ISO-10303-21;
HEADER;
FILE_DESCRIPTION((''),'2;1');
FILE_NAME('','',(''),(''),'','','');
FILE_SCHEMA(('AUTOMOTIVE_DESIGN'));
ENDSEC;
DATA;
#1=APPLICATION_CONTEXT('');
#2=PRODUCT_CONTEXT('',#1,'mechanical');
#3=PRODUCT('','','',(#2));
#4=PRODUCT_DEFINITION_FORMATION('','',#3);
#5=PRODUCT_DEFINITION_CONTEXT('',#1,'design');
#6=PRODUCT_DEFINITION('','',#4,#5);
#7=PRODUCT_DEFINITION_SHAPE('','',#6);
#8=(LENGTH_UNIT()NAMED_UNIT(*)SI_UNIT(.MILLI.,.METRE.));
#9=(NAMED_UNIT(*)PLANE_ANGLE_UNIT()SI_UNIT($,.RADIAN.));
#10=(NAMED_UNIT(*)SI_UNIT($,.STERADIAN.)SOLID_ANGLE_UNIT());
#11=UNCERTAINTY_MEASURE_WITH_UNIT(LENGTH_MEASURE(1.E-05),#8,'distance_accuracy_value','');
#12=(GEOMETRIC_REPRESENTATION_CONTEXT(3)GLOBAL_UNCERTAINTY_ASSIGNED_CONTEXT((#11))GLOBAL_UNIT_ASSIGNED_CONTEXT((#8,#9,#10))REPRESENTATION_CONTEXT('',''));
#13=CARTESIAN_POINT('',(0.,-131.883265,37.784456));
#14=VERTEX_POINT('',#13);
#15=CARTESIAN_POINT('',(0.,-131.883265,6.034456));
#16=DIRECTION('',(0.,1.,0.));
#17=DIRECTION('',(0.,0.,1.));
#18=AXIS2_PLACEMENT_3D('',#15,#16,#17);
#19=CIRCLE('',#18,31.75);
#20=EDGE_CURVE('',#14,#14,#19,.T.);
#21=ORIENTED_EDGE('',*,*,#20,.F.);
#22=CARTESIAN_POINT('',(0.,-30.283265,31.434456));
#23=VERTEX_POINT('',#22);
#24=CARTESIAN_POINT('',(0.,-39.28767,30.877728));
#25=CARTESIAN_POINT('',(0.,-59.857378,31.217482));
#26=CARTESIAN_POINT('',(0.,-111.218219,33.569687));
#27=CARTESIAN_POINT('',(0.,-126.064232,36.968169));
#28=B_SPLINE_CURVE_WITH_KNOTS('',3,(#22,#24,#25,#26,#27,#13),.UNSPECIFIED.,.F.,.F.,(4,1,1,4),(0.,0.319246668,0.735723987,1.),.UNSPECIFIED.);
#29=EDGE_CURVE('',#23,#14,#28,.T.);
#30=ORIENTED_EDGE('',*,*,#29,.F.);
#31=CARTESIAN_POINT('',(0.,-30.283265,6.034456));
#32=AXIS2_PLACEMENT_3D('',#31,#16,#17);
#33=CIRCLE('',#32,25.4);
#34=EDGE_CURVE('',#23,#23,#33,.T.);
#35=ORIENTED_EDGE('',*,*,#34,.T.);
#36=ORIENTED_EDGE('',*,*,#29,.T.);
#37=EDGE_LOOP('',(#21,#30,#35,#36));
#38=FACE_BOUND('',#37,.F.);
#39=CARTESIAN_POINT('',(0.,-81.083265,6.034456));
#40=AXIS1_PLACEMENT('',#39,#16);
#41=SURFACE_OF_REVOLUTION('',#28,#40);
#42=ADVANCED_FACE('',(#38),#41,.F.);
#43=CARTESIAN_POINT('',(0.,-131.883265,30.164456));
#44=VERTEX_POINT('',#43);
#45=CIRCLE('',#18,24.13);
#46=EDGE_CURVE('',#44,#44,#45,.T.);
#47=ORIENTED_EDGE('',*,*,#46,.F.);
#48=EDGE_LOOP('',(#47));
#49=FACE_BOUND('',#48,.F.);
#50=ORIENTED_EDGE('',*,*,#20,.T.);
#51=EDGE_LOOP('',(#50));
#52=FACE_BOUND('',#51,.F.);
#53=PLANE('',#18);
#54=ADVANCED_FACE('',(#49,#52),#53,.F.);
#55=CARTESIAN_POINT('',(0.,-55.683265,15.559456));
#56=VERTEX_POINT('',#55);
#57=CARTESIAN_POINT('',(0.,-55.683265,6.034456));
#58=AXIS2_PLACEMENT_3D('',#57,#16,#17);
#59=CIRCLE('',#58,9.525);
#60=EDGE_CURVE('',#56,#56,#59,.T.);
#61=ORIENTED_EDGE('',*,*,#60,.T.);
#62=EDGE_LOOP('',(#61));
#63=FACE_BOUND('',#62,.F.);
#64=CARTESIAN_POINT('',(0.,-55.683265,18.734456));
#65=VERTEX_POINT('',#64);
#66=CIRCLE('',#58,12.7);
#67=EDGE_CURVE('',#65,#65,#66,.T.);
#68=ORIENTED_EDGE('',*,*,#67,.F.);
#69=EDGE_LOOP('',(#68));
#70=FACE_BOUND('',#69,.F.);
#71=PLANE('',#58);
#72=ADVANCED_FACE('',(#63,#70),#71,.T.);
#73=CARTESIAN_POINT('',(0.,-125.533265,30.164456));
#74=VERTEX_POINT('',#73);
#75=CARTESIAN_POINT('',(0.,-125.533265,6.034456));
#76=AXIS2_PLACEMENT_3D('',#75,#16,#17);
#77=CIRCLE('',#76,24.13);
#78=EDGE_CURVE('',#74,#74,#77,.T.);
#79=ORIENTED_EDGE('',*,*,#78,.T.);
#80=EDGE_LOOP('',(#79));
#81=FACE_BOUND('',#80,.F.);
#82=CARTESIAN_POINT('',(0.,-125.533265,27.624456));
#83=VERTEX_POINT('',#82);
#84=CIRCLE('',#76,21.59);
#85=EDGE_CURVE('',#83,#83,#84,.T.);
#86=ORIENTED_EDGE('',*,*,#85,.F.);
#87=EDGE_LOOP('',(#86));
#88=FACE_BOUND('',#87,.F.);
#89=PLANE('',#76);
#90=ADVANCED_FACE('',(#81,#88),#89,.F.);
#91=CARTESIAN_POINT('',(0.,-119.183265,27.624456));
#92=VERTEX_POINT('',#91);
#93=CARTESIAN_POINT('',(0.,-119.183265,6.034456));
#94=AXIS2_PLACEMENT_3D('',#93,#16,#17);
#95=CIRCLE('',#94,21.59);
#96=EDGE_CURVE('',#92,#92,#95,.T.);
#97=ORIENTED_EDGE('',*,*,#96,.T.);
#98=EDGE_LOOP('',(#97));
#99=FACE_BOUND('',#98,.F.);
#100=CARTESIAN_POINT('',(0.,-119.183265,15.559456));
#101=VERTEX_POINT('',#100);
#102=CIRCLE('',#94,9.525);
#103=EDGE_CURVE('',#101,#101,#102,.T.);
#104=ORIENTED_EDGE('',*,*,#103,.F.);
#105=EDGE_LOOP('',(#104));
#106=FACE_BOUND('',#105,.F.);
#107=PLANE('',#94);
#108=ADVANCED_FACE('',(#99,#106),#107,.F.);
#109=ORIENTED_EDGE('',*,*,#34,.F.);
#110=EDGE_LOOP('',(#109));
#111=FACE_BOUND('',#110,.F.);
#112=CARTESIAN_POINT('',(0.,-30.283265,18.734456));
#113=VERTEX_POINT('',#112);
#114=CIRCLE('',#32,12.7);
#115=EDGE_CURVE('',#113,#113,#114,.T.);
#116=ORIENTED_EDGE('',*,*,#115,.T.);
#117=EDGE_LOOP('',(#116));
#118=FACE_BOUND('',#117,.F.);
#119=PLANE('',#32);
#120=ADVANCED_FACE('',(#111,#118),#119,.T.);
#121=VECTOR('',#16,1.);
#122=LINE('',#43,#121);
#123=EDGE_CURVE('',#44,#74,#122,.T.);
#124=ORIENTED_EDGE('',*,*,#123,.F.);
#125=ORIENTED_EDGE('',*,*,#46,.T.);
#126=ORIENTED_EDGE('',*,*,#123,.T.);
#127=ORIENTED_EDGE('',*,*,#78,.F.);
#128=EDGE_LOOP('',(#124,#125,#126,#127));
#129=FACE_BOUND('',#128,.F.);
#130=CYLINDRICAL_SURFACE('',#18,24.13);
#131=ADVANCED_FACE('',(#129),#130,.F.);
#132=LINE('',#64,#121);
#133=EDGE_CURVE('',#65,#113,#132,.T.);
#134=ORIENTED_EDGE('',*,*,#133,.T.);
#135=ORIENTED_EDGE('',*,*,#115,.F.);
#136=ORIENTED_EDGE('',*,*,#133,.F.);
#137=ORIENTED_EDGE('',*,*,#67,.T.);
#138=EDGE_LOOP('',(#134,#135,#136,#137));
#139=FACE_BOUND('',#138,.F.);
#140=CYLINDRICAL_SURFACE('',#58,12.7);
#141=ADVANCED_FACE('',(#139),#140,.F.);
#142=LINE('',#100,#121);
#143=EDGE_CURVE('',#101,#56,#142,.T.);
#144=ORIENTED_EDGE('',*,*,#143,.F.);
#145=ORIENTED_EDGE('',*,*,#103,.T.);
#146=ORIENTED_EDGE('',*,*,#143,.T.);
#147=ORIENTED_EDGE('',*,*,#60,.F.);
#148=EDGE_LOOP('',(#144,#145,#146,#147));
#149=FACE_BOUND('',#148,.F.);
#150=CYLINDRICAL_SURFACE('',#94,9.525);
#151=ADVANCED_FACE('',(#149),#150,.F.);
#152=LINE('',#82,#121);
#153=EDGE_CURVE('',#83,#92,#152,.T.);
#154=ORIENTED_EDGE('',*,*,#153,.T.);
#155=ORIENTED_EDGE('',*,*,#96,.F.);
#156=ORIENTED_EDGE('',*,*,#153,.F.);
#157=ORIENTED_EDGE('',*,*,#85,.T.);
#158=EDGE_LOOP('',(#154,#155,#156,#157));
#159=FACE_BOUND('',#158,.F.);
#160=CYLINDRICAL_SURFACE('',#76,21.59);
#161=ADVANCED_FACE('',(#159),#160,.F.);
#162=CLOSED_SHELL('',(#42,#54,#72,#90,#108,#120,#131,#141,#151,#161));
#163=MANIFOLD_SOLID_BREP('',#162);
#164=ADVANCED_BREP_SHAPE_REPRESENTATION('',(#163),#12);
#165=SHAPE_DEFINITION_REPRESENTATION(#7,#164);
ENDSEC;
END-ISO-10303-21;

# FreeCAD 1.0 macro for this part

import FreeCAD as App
import Part
import Sketcher

V = App.Vector
Q = App.Units.Quantity

doc = App.newDocument("Part")
params = doc.addObject("Spreadsheet::Sheet", "Params")
for row, (alias, value) in enumerate([
    ("sketch1_width", "1 in"),
    ("sketch1_width2", "2.5 in"),
    ("sketch1_height", "0.3 in"),
    ("sketch1_height2", "0.1 in"),
    ("sketch1_height3", "0.5 in"),
    ("revolution_angle", "360 deg"),
], start=1):
    params.set(f"A{row}", alias)
    params.set(f"B{row}", "=" + value)
    params.setAlias(f"B{row}", alias)

body = doc.addObject("PartDesign::Body", "Body")

sketch1 = body.newObject("Sketcher::SketchObject", "Sketch")
sketch1.AttachmentSupport = (doc.getObject("YZ_Plane"), [""])
sketch1.MapMode = "FlatFace"
sketch1.addGeometry([
    Part.BSplineCurve([V(-30.283265, 31.434456, 0), V(-39.28767, 30.877728, 0), V(-59.857378, 31.217482, 0), V(-111.218219, 33.569687, 0), V(-126.064232, 36.968169, 0), V(-131.883265, 37.784456, 0)], [4, 1, 1, 4], [0, 0.319246668, 0.735723987, 1], False, 3, [1, 1, 1, 1, 1, 1], False),
    Part.LineSegment(V(-131.883265, 37.784456, 0), V(-131.883265, 30.164456, 0)),
    Part.LineSegment(V(-131.883265, 30.164456, 0), V(-125.533265, 30.164456, 0)),
    Part.LineSegment(V(-125.533265, 30.164456, 0), V(-125.533265, 27.624456, 0)),
    Part.LineSegment(V(-125.533265, 27.624456, 0), V(-119.183265, 27.624456, 0)),
    Part.LineSegment(V(-119.183265, 27.624456, 0), V(-119.183265, 15.559456, 0)),
    Part.LineSegment(V(-119.183265, 15.559456, 0), V(-55.683265, 15.559456, 0)),
    Part.LineSegment(V(-55.683265, 15.559456, 0), V(-55.683265, 18.734456, 0)),
    Part.LineSegment(V(-55.683265, 18.734456, 0), V(-30.283265, 18.734456, 0)),
    Part.LineSegment(V(-30.283265, 18.734456, 0), V(-30.283265, 31.434456, 0)),
], False)
sketch1.addGeometry(Part.LineSegment(V(-131.883265, 6.034456, 0), V(-30.283265, 6.034456, 0)), True)
sketch1.addConstraint([
    Sketcher.Constraint("Block", 0),
    Sketcher.Constraint("Coincident", 0, 2, 1, 1),
    Sketcher.Constraint("Coincident", 1, 2, 2, 1),
    Sketcher.Constraint("Coincident", 2, 2, 3, 1),
    Sketcher.Constraint("Coincident", 3, 2, 4, 1),
    Sketcher.Constraint("Coincident", 4, 2, 5, 1),
    Sketcher.Constraint("Coincident", 5, 2, 6, 1),
    Sketcher.Constraint("Coincident", 6, 2, 7, 1),
    Sketcher.Constraint("Coincident", 7, 2, 8, 1),
    Sketcher.Constraint("Coincident", 8, 2, 9, 1),
    Sketcher.Constraint("Coincident", 9, 2, 0, 1),
    Sketcher.Constraint("Vertical", 1),
    Sketcher.Constraint("Horizontal", 2),
    Sketcher.Constraint("Vertical", 3),
    Sketcher.Constraint("Horizontal", 4),
    Sketcher.Constraint("Vertical", 5),
    Sketcher.Constraint("Horizontal", 6),
    Sketcher.Constraint("Vertical", 7),
    Sketcher.Constraint("Horizontal", 8),
    Sketcher.Constraint("Vertical", 9),
    Sketcher.Constraint("Horizontal", 10),
    Sketcher.Constraint("Vertical", 1, 2, 10, 1),
    Sketcher.Constraint("Vertical", 9, 2, 10, 2),
    Sketcher.Constraint("Equal", 2, 4),
    Sketcher.Constraint("DistanceX", 8, 1, 8, 2, Q("1 in")),
    Sketcher.Constraint("DistanceX", 6, 1, 6, 2, Q("2.5 in")),
    Sketcher.Constraint("DistanceY", 1, 2, 1, 1, Q("0.3 in")),
    Sketcher.Constraint("DistanceY", 3, 2, 3, 1, Q("0.1 in")),
    Sketcher.Constraint("DistanceY", 9, 1, 9, 2, Q("0.5 in")),
    Sketcher.Constraint("DistanceY", 10, 2, 9, 2, Q("1 in")),
    Sketcher.Constraint("DistanceY", 5, 2, 5, 1, Q("0.475 in")),
])
sketch1.setExpression("Constraints[24]", "Params.sketch1_width")
sketch1.setExpression("Constraints[25]", "Params.sketch1_width2")
sketch1.setExpression("Constraints[26]", "Params.sketch1_height")
sketch1.setExpression("Constraints[27]", "Params.sketch1_height2")
sketch1.setExpression("Constraints[28]", "Params.sketch1_height3")
revolution = body.newObject("PartDesign::Revolution", "Revolution")
revolution.Profile = sketch1
revolution.ReferenceAxis = (sketch1, ["Axis0"])
revolution.setExpression("Angle", "Params.revolution_angle")

doc.recompute()
